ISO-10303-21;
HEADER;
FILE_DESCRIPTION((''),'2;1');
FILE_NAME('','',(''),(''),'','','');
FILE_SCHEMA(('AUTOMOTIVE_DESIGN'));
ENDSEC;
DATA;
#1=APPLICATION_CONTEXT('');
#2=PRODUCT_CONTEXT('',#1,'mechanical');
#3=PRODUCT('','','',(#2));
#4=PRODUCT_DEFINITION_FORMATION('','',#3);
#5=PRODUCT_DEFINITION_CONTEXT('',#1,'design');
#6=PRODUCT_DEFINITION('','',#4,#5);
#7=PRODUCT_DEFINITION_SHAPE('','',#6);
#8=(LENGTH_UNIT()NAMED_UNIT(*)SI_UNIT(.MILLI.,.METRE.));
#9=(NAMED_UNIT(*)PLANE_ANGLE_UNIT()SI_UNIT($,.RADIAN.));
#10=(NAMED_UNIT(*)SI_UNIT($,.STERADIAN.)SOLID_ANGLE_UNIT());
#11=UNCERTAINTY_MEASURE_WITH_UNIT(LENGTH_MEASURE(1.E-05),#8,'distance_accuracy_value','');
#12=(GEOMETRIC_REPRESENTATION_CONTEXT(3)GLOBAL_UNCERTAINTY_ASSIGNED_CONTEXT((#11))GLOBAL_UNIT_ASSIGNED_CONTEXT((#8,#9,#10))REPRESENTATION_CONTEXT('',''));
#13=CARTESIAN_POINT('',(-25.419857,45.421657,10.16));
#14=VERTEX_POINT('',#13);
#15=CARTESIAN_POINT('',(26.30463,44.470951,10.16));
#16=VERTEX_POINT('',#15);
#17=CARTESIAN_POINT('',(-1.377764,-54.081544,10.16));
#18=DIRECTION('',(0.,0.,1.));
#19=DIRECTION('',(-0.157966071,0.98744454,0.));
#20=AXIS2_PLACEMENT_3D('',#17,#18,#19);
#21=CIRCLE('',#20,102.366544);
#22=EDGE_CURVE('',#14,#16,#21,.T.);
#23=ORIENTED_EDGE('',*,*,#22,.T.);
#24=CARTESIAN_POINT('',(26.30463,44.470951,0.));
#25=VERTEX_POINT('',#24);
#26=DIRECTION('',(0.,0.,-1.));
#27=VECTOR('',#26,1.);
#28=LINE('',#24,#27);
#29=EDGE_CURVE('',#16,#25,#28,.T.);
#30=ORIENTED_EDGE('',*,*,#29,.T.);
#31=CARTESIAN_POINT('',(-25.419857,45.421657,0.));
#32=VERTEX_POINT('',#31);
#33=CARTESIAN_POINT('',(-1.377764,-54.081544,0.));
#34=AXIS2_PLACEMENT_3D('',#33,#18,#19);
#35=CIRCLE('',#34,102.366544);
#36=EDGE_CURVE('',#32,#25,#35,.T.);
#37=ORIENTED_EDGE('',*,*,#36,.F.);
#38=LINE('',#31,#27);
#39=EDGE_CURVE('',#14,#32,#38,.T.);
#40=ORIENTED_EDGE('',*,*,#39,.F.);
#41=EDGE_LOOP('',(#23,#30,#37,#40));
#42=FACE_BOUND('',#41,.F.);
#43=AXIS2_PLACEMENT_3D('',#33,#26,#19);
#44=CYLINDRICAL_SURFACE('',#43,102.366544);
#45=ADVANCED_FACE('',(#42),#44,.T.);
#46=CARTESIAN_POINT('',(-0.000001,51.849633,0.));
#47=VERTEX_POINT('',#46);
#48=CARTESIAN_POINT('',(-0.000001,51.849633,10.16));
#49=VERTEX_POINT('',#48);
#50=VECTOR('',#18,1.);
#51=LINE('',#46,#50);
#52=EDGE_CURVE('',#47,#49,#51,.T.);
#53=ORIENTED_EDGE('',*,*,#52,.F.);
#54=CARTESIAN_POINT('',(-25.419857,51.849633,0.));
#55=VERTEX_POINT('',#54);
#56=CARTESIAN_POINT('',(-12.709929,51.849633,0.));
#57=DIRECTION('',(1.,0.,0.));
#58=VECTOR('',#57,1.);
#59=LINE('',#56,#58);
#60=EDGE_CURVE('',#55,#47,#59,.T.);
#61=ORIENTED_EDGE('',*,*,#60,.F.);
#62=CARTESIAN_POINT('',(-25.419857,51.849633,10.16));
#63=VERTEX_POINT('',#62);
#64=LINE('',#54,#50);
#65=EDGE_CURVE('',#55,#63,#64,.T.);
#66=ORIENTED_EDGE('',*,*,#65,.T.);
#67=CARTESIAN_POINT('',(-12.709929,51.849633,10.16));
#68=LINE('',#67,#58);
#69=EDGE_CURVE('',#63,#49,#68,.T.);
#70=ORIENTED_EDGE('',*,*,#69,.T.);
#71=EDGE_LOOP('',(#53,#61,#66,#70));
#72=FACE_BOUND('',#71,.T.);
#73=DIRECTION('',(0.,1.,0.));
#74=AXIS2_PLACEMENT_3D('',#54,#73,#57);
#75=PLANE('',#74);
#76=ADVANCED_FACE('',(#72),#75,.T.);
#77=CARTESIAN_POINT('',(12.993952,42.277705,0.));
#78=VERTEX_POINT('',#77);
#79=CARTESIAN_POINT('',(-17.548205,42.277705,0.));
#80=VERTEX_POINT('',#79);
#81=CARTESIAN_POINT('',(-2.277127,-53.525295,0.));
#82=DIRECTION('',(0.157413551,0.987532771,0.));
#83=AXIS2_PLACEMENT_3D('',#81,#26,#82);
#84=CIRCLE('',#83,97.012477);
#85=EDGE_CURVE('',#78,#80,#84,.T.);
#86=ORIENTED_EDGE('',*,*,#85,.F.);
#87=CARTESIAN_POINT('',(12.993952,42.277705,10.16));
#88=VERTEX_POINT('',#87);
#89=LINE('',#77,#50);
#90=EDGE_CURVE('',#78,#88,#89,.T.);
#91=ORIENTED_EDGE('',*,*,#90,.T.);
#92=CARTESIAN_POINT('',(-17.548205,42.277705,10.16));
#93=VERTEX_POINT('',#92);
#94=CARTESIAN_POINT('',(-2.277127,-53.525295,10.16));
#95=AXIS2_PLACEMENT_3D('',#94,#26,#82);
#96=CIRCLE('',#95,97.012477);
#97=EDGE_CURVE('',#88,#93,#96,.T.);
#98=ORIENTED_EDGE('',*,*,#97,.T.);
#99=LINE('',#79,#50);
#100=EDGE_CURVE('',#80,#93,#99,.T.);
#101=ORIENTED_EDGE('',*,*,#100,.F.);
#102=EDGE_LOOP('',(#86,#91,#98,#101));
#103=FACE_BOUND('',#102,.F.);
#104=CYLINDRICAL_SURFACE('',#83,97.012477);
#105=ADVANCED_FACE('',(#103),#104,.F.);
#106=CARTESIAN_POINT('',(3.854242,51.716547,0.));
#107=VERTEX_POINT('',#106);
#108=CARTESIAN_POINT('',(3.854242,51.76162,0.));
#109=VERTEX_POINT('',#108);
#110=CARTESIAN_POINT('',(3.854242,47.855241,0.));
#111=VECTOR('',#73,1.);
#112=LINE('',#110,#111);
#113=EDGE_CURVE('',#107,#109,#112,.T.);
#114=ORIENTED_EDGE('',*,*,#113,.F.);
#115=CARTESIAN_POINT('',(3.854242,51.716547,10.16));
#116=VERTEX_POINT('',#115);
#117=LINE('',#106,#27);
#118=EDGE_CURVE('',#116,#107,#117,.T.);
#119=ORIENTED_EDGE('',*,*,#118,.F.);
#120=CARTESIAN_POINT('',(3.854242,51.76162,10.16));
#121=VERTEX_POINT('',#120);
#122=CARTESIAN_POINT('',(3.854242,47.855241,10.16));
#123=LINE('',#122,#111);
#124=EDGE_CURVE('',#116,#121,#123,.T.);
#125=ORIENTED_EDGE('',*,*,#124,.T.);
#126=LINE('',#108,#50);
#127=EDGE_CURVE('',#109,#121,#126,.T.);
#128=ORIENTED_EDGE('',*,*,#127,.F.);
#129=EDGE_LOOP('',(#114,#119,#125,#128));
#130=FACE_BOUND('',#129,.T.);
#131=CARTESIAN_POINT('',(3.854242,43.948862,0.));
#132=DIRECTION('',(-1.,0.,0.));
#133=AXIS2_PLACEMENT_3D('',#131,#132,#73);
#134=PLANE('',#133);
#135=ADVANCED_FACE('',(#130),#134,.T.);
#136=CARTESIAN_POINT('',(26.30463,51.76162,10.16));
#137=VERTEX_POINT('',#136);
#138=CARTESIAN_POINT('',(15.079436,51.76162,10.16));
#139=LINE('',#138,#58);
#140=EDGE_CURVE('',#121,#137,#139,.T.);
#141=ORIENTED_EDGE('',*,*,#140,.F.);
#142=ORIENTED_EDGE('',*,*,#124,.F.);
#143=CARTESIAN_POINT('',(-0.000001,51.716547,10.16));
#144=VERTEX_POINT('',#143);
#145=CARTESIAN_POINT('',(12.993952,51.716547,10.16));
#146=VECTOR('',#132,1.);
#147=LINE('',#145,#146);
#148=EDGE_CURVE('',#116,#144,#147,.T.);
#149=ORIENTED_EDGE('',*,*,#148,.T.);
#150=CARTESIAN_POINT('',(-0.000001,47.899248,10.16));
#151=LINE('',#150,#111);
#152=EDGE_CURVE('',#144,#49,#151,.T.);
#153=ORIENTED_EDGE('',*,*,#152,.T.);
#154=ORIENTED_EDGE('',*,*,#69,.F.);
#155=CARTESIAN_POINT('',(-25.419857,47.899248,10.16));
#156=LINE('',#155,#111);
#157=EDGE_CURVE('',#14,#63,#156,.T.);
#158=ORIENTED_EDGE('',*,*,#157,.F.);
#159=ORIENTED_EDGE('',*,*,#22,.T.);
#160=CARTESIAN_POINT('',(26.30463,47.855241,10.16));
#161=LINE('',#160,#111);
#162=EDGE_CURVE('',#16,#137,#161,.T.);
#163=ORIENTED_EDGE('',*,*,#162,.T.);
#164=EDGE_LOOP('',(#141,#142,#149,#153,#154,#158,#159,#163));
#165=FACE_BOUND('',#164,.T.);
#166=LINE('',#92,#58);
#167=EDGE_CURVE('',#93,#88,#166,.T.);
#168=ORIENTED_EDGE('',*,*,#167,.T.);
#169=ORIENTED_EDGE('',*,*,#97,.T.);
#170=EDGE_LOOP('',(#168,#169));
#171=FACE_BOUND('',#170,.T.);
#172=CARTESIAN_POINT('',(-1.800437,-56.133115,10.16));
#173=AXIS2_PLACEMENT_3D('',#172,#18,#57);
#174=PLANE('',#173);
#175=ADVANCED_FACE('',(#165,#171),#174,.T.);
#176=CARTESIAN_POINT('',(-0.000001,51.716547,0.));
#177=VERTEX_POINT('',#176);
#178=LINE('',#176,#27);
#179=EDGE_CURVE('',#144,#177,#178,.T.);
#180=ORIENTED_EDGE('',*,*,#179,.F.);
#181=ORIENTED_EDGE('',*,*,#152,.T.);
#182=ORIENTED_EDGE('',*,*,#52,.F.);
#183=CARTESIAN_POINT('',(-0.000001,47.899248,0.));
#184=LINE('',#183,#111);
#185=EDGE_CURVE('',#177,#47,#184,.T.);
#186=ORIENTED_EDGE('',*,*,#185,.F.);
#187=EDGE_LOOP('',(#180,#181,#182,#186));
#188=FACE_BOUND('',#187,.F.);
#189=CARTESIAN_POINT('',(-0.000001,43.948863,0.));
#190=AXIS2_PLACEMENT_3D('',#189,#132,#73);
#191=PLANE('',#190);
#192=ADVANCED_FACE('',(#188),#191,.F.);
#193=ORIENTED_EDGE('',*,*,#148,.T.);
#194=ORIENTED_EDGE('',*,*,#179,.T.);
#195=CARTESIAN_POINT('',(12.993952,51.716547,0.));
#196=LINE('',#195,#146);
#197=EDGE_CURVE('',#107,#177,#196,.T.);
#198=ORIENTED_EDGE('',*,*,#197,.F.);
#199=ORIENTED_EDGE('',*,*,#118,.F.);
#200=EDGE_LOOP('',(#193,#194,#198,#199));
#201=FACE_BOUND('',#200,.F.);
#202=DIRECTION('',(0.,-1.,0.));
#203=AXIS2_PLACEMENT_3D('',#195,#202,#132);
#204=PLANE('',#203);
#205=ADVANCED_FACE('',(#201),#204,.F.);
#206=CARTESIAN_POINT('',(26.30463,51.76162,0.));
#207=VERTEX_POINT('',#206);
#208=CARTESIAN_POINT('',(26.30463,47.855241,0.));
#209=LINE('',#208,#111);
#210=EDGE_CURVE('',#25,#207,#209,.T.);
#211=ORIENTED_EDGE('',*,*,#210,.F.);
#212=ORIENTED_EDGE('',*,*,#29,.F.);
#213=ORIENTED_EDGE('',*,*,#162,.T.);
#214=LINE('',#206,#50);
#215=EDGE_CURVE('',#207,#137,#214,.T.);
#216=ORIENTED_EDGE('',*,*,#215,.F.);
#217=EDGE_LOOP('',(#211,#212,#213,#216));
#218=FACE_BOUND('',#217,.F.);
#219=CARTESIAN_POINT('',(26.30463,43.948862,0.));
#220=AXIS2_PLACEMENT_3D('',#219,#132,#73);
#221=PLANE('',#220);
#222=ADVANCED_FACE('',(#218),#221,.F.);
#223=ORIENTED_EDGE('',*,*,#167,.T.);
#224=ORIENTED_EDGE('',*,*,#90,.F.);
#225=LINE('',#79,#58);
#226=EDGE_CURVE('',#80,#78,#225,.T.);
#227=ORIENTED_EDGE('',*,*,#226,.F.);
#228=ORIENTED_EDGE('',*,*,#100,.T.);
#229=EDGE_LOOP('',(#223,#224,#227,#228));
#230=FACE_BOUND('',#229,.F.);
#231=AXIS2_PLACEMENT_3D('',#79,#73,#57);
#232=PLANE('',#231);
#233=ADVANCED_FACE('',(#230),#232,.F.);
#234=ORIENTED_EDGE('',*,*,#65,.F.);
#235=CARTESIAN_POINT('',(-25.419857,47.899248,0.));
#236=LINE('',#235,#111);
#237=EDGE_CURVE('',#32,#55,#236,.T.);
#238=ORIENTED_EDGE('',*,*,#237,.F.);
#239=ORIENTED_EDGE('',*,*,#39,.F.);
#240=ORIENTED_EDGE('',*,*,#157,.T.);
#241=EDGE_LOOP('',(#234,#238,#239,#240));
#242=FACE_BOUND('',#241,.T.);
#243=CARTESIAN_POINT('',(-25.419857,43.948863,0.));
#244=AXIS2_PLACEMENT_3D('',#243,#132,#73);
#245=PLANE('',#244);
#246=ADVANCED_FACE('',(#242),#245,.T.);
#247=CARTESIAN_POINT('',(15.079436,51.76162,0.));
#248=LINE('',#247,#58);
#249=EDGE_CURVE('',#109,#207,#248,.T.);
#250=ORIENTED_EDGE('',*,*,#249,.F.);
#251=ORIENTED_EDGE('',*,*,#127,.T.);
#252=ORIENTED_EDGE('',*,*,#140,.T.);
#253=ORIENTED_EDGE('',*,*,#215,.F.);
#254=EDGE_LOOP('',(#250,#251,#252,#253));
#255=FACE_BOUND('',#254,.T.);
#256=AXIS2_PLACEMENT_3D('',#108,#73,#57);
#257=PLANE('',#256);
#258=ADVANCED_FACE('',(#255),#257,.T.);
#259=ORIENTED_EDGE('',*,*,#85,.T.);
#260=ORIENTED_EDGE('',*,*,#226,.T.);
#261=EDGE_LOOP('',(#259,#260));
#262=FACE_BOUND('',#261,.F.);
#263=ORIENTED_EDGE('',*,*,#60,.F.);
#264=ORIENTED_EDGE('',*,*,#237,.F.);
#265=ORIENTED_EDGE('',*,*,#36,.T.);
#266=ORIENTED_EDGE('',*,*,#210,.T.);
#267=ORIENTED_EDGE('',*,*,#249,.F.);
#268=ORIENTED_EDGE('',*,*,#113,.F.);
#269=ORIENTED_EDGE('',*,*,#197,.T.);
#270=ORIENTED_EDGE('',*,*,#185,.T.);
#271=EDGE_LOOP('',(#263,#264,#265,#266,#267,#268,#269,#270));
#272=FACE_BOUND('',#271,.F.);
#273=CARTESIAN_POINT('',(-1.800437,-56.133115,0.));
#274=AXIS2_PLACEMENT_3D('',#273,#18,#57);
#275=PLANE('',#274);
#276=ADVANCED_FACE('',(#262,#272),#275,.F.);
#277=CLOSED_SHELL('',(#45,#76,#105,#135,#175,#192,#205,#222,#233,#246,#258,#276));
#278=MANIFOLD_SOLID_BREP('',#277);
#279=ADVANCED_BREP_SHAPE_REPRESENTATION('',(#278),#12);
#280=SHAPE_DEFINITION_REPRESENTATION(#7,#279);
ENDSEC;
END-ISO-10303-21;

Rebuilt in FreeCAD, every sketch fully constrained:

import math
import FreeCAD as App
import Part
import Sketcher

V = App.Vector
Q = App.Units.Quantity

doc = App.newDocument("Part")
params = doc.addObject("Spreadsheet::Sheet", "Params")
for row, (alias, value) in enumerate([
    ("pad1_length", "0.4 in"),
    ("pad2_length", "0.4 in"),
], start=1):
    params.set(f"A{row}", alias)
    params.set(f"B{row}", "=" + value)
    params.setAlias(f"B{row}", alias)

body = doc.addObject("PartDesign::Body", "Body")

# Sketch on XY plane
sketch1 = body.newObject("Sketcher::SketchObject", "Sketch")
sketch1.AttachmentSupport = (doc.getObject("XY_Plane"), [""])
sketch1.MapMode = "FlatFace"
sketch1.addGeometry([
    Part.ArcOfCircle(Part.Circle(V(-1.4, -54.1, 0), V(0, 0, 1), 102.4), math.radians(99), math.radians(442)),  # 0
    Part.LineSegment(V(13, 47.3, 0), V(13, 51.7, 0)),  # 1
    Part.LineSegment(V(13, 51.7, 0), V(-17.5, 51.7, 0)),  # 2
    Part.LineSegment(V(-17.5, 51.7, 0), V(-17.5, 47, 0)),  # 3
    Part.ArcOfCircle(Part.Circle(V(-2.3, -53.5, 0), V(0, 0, 1), 97), math.radians(99), math.radians(441)),  # 4
    Part.LineSegment(V(-17.5, 42.3, 0), V(13, 42.3, 0)),  # 5
], False)
sketch1.addConstraint([
    Sketcher.Constraint("Coincident", 0, 2, 1, 1),
    Sketcher.Constraint("Coincident", 1, 2, 2, 1),
    Sketcher.Constraint("Coincident", 2, 2, 3, 1),
    Sketcher.Constraint("Coincident", 3, 2, 0, 1),
    Sketcher.Constraint("Coincident", 4, 1, 5, 1),
    Sketcher.Constraint("Coincident", 5, 2, 4, 2),
    Sketcher.Constraint("Vertical", 1),
    Sketcher.Constraint("Horizontal", 2),
    Sketcher.Constraint("Vertical", 3),
    Sketcher.Constraint("Horizontal", 5),
    Sketcher.Constraint("Vertical", 3, 2, 4, 1),
    Sketcher.Constraint("Vertical", 1, 2, 5, 2),
    Sketcher.Constraint("Radius", 0, Q("102.366544 mm")),
    Sketcher.Constraint("Radius", 4, Q("97.012477 mm")),
    Sketcher.Constraint("DistanceY", 4, 3, 4, 1, Q("95.803 mm")),
    Sketcher.Constraint("DistanceY", 1, 1, 1, 2, Q("4.445424 mm")),
    Sketcher.Constraint("DistanceY", 3, 2, 3, 1, Q("4.716806 mm")),
    Sketcher.Constraint("DistanceY", -1, 1, 3, 2, Q("46.999741 mm")),
    Sketcher.Constraint("DistanceY", 0, 3, 4, 3, Q("0.556249 mm")),
    Sketcher.Constraint("DistanceX", 0, 3, -1, 1, Q("1.377764 mm")),
])
pad1 = body.newObject("PartDesign::Pad", "Pad")
pad1.Profile = sketch1
pad1.setExpression("Length", "Params.pad1_length")

# Sketch on XY plane
sketch2 = body.newObject("Sketcher::SketchObject", "Sketch001")
sketch2.AttachmentSupport = (doc.getObject("XY_Plane"), [""])
sketch2.MapMode = "FlatFace"
sketch2.addGeometry([
    Part.LineSegment(V(4, 52, 0), V(4, 44, 0)),  # 0
    Part.LineSegment(V(4, 44, 0), V(26, 44, 0)),  # 1
    Part.LineSegment(V(26, 44, 0), V(26, 52, 0)),  # 2
    Part.LineSegment(V(26, 52, 0), V(4, 52, 0)),  # 3
    Part.LineSegment(V(-25, 52, 0), V(-25, 44, 0)),  # 4
    Part.LineSegment(V(-25, 44, 0), V(0, 44, 0)),  # 5
    Part.LineSegment(V(0, 44, 0), V(0, 52, 0)),  # 6
    Part.LineSegment(V(0, 52, 0), V(-25, 52, 0)),  # 7
], False)
sketch2.addConstraint([
    Sketcher.Constraint("Coincident", 0, 2, 1, 1),
    Sketcher.Constraint("Coincident", 1, 2, 2, 1),
    Sketcher.Constraint("Coincident", 2, 2, 3, 1),
    Sketcher.Constraint("Coincident", 3, 2, 0, 1),
    Sketcher.Constraint("Coincident", 4, 2, 5, 1),
    Sketcher.Constraint("Coincident", 5, 2, 6, 1),
    Sketcher.Constraint("Coincident", 6, 2, 7, 1),
    Sketcher.Constraint("Coincident", 7, 2, 4, 1),
    Sketcher.Constraint("Vertical", 0),
    Sketcher.Constraint("Horizontal", 1),
    Sketcher.Constraint("Vertical", 2),
    Sketcher.Constraint("Horizontal", 3),
    Sketcher.Constraint("Vertical", 4),
    Sketcher.Constraint("Horizontal", 5),
    Sketcher.Constraint("Vertical", 6),
    Sketcher.Constraint("Horizontal", 7),
    Sketcher.Constraint("PointOnObject", 5, 2, -2),
    Sketcher.Constraint("Horizontal", 1, 2, 4, 2),
    Sketcher.Constraint("DistanceX", 1, 1, 1, 2, Q("22.450389 mm")),
    Sketcher.Constraint("DistanceY", 4, 2, 4, 1, Q("7.90077 mm")),
    Sketcher.Constraint("DistanceX", 4, 2, 0, 2, Q("29.274099 mm")),
    Sketcher.Constraint("DistanceX", 5, 1, 5, 2, Q("25.419857 mm")),
    Sketcher.Constraint("DistanceY", 0, 2, 0, 1, Q("7.812757 mm")),
    Sketcher.Constraint("DistanceY", -1, 1, 2, 2, Q("51.76162 mm")),
])
pad2 = body.newObject("PartDesign::Pad", "Pad001")
pad2.Profile = sketch2
pad2.setExpression("Length", "Params.pad2_length")

doc.recompute()
